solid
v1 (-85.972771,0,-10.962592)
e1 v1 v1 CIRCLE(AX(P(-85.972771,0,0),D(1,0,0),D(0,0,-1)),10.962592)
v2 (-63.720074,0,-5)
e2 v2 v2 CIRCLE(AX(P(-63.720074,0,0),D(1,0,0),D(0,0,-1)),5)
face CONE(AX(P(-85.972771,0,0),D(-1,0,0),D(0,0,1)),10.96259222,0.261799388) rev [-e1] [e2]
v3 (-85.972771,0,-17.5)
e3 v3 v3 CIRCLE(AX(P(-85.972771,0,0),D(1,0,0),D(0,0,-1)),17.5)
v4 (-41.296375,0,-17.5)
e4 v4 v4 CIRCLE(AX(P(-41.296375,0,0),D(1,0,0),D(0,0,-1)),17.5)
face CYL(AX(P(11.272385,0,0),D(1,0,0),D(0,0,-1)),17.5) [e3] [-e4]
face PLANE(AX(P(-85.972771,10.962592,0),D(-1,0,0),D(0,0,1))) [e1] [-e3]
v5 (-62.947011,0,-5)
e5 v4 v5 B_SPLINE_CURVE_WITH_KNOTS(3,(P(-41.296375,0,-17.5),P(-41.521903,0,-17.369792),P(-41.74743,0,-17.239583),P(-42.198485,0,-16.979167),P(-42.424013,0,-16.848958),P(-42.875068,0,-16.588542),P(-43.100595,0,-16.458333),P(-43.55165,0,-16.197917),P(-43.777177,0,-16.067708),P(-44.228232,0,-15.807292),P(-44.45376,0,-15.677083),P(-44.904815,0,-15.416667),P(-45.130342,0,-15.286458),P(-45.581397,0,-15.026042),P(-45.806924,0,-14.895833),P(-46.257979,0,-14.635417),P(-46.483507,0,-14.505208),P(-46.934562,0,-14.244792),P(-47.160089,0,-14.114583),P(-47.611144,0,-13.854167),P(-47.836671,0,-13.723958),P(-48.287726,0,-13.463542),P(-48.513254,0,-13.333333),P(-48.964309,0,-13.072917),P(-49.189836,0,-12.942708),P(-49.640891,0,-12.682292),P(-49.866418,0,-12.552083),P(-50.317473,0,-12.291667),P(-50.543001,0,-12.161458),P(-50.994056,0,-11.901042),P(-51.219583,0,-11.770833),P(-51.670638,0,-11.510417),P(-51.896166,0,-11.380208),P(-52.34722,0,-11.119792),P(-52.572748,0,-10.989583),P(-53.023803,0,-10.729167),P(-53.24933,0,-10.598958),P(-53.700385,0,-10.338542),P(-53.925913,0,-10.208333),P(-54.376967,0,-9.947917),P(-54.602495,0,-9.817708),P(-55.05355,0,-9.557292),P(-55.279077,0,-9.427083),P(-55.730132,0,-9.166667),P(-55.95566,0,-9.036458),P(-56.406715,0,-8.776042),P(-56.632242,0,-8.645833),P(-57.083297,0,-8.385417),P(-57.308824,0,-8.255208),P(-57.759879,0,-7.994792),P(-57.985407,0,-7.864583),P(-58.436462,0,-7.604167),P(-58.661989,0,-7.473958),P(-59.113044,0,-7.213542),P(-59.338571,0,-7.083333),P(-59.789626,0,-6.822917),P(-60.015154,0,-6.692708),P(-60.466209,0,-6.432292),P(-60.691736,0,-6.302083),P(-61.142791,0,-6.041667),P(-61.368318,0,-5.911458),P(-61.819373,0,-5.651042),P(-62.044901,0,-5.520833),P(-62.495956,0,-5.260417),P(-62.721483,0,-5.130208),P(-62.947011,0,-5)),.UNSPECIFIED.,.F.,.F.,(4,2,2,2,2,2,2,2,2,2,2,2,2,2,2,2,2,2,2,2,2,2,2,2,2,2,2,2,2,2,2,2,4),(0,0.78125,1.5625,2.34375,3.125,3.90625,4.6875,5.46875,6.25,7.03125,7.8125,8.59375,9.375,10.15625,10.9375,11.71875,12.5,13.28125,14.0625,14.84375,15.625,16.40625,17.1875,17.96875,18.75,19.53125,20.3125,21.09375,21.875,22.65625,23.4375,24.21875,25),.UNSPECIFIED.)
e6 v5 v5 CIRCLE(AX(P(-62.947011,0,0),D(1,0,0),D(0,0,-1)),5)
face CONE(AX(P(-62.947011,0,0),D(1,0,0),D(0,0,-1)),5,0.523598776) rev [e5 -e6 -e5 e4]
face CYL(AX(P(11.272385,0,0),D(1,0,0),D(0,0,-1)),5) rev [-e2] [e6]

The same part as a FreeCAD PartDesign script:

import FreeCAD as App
import Part
import Sketcher
Q = App.Units.Quantity


def add_polygon(sketch, points):
    """Adds a closed chain of lines whose ends are joined by coincident constraints."""
    first, n = sketch.GeometryCount, len(points)
    for a, b in zip(points, points[1:] + points[:1]):
        sketch.addGeometry(Part.LineSegment(App.Vector(*a, 0), App.Vector(*b, 0)), False)
    for i in range(n):
        sketch.addConstraint(Sketcher.Constraint("Coincident", first + i, 2, first + (i + 1) % n, 1))

doc = App.newDocument("Part")
body = doc.addObject("PartDesign::Body", "Body")

sketch1 = body.newObject("Sketcher::SketchObject", "Sketch")
sketch1.AttachmentSupport = (doc.getObject("XY_Plane"), [""])
sketch1.MapMode = "FlatFace"
add_polygon(sketch1, [(-41.3, 17.5), (-86, 17.5), (-86, 11), (-63.7, 5), (-62.9, 5)])
sketch1.addConstraint([
    Sketcher.Constraint("Horizontal", 0),
    Sketcher.Constraint("Vertical", 1),
    Sketcher.Constraint("Horizontal", 3),
    Sketcher.Constraint("Angle", 2, Q("-15 deg")),
    Sketcher.Constraint("Angle", 4, Q("30 deg")),
    Sketcher.Constraint("Distance", 4, Q("25 mm")),
    Sketcher.Constraint("DistanceY", -1, 1, 2, 2, Q("5 mm")),
    Sketcher.Constraint("DistanceX", 2, 2, 4, 2, Q("22.423699 mm")),
    Sketcher.Constraint("DistanceX", 0, 2, 0, 1, Q("44.676396 mm")),
    Sketcher.Constraint("DistanceX", 0, 2, -1, 1, Q("85.972771 mm")),
])
revolution = body.newObject("PartDesign::Revolution", "Revolution")
revolution.Profile = sketch1
revolution.ReferenceAxis = (sketch1, ["H_Axis"])
revolution.Angle = 360

doc.recompute()
